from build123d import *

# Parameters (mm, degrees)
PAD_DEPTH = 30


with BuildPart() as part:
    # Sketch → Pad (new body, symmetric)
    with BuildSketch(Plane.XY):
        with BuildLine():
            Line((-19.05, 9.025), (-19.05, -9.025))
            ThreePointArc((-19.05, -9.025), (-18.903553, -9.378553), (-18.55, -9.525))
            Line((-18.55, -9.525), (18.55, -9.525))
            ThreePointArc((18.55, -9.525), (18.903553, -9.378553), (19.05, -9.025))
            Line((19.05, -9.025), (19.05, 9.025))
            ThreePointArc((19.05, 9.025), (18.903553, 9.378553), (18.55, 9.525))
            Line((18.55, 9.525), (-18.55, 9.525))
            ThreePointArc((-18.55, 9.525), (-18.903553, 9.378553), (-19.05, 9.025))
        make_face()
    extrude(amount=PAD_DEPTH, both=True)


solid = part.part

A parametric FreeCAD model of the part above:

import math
import FreeCAD as App
import Part
import Sketcher
Q = App.Units.Quantity

doc = App.newDocument("Part")
body = doc.addObject("PartDesign::Body", "Body")

# Sketch on XY plane
sketch1 = doc.addObject("Sketcher::SketchObject", "Sketch")
body.addObject(sketch1)
sketch1.AttachmentSupport = (doc.XY_Plane, [""])
sketch1.MapMode = "FlatFace"
sketch1.addGeometry(Part.LineSegment(App.Vector(-19.1, 9, 0), App.Vector(-19.1, -9, 0)), False)
sketch1.addGeometry(Part.ArcOfCircle(Part.Circle(App.Vector(-18.5, -9, 0), App.Vector(0, 0, 1), 0.5), math.radians(-180), math.radians(-90)), False)
sketch1.addGeometry(Part.LineSegment(App.Vector(-18.6, -9.5, 0), App.Vector(18.6, -9.5, 0)), False)
sketch1.addGeometry(Part.ArcOfCircle(Part.Circle(App.Vector(18.5, -9, 0), App.Vector(0, 0, 1), 0.5), math.radians(-90), math.radians(0)), False)
sketch1.addGeometry(Part.LineSegment(App.Vector(19.1, -9, 0), App.Vector(19.1, 9, 0)), False)
sketch1.addGeometry(Part.ArcOfCircle(Part.Circle(App.Vector(18.5, 9, 0), App.Vector(0, 0, 1), 0.5), math.radians(0), math.radians(90)), False)
sketch1.addGeometry(Part.LineSegment(App.Vector(18.6, 9.5, 0), App.Vector(-18.6, 9.5, 0)), False)
sketch1.addGeometry(Part.ArcOfCircle(Part.Circle(App.Vector(-18.5, 9, 0), App.Vector(0, 0, 1), 0.5), math.radians(90), math.radians(180)), False)
sketch1.addConstraint(Sketcher.Constraint("Coincident", 0, 2, 1, 1))
sketch1.addConstraint(Sketcher.Constraint("Coincident", 1, 2, 2, 1))
sketch1.addConstraint(Sketcher.Constraint("Coincident", 2, 2, 3, 1))
sketch1.addConstraint(Sketcher.Constraint("Coincident", 3, 2, 4, 1))
sketch1.addConstraint(Sketcher.Constraint("Coincident", 4, 2, 5, 1))
sketch1.addConstraint(Sketcher.Constraint("Coincident", 5, 2, 6, 1))
sketch1.addConstraint(Sketcher.Constraint("Coincident", 6, 2, 7, 1))
sketch1.addConstraint(Sketcher.Constraint("Coincident", 7, 2, 0, 1))
sketch1.addConstraint(Sketcher.Constraint("Vertical", 0))
sketch1.addConstraint(Sketcher.Constraint("Horizontal", 2))
sketch1.addConstraint(Sketcher.Constraint("Vertical", 4))
sketch1.addConstraint(Sketcher.Constraint("Horizontal", 6))
sketch1.addConstraint(Sketcher.Constraint("Equal", 1, 3))
sketch1.addConstraint(Sketcher.Constraint("Equal", 3, 5))
sketch1.addConstraint(Sketcher.Constraint("Equal", 5, 7))
sketch1.addConstraint(Sketcher.Constraint("Symmetric", 1, 3, 5, 3, -1, 1))
sketch1.addConstraint(Sketcher.Constraint("Horizontal", 3, 3, 0, 2))
sketch1.addConstraint(Sketcher.Constraint("Horizontal", 0, 2, 3, 2))
sketch1.addConstraint(Sketcher.Constraint("Horizontal", 7, 3, 4, 2))
sketch1.addConstraint(Sketcher.Constraint("Horizontal", 4, 2, 7, 2))
sketch1.addConstraint(Sketcher.Constraint("Vertical", 7, 3, 1, 2))
sketch1.addConstraint(Sketcher.Constraint("Vertical", 5, 3, 2, 2))
sketch1.addConstraint(Sketcher.Constraint("Vertical", 2, 2, 5, 2))
sketch1.addConstraint(Sketcher.Constraint("Vertical", 1, 2, 6, 2))
sketch1.addConstraint(Sketcher.Constraint("Radius", 1, Q("0.500001 mm")))
sketch1.addConstraint(Sketcher.Constraint("DistanceX", 2, 1, 2, 2, Q("37.1 mm")))
sketch1.addConstraint(Sketcher.Constraint("DistanceY", 0, 2, 0, 1, Q("18.05 mm")))
pad1 = doc.addObject("PartDesign::Pad", "Pad")
body.addObject(pad1)
pad1.Profile = sketch1
pad1.Length = 60
pad1.Midplane = True

doc.recompute()
